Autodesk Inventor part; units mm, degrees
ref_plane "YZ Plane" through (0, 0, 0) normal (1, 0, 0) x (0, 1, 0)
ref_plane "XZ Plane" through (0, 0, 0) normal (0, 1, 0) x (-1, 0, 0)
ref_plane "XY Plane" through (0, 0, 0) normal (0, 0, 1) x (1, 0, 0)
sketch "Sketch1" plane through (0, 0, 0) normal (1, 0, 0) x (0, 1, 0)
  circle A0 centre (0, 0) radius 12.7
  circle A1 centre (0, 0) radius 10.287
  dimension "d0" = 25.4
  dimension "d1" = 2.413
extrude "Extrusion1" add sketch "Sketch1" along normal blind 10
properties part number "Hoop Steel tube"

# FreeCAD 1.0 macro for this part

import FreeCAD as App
import Part
import Sketcher

V = App.Vector
Q = App.Units.Quantity

doc = App.newDocument("Part")
body = doc.addObject("PartDesign::Body", "Body")

# Sketch on YZ plane
sketch1 = body.newObject("Sketcher::SketchObject", "Sketch")
sketch1.AttachmentSupport = (doc.getObject("YZ_Plane"), [""])
sketch1.MapMode = "FlatFace"
sketch1.addGeometry(Part.Circle(V(0, 0, 0), V(0, 0, 1), 12.7), False)
sketch1.addGeometry(Part.Circle(V(0, 0, 0), V(0, 0, 1), 10.287), False)
sketch1.addConstraint(Sketcher.Constraint("Coincident", 0, 3, -1, 1))
sketch1.addConstraint(Sketcher.Constraint("Coincident", 1, 3, -1, 1))
sketch1.addConstraint(Sketcher.Constraint("Diameter", 0, Q("1 in")))
sketch1.addConstraint(Sketcher.Constraint("Diameter", 1, Q("0.81 in")))
pad1 = body.newObject("PartDesign::Pad", "Pad")
pad1.Profile = sketch1
pad1.Length = Q("0.3937008 in")

doc.recompute()
